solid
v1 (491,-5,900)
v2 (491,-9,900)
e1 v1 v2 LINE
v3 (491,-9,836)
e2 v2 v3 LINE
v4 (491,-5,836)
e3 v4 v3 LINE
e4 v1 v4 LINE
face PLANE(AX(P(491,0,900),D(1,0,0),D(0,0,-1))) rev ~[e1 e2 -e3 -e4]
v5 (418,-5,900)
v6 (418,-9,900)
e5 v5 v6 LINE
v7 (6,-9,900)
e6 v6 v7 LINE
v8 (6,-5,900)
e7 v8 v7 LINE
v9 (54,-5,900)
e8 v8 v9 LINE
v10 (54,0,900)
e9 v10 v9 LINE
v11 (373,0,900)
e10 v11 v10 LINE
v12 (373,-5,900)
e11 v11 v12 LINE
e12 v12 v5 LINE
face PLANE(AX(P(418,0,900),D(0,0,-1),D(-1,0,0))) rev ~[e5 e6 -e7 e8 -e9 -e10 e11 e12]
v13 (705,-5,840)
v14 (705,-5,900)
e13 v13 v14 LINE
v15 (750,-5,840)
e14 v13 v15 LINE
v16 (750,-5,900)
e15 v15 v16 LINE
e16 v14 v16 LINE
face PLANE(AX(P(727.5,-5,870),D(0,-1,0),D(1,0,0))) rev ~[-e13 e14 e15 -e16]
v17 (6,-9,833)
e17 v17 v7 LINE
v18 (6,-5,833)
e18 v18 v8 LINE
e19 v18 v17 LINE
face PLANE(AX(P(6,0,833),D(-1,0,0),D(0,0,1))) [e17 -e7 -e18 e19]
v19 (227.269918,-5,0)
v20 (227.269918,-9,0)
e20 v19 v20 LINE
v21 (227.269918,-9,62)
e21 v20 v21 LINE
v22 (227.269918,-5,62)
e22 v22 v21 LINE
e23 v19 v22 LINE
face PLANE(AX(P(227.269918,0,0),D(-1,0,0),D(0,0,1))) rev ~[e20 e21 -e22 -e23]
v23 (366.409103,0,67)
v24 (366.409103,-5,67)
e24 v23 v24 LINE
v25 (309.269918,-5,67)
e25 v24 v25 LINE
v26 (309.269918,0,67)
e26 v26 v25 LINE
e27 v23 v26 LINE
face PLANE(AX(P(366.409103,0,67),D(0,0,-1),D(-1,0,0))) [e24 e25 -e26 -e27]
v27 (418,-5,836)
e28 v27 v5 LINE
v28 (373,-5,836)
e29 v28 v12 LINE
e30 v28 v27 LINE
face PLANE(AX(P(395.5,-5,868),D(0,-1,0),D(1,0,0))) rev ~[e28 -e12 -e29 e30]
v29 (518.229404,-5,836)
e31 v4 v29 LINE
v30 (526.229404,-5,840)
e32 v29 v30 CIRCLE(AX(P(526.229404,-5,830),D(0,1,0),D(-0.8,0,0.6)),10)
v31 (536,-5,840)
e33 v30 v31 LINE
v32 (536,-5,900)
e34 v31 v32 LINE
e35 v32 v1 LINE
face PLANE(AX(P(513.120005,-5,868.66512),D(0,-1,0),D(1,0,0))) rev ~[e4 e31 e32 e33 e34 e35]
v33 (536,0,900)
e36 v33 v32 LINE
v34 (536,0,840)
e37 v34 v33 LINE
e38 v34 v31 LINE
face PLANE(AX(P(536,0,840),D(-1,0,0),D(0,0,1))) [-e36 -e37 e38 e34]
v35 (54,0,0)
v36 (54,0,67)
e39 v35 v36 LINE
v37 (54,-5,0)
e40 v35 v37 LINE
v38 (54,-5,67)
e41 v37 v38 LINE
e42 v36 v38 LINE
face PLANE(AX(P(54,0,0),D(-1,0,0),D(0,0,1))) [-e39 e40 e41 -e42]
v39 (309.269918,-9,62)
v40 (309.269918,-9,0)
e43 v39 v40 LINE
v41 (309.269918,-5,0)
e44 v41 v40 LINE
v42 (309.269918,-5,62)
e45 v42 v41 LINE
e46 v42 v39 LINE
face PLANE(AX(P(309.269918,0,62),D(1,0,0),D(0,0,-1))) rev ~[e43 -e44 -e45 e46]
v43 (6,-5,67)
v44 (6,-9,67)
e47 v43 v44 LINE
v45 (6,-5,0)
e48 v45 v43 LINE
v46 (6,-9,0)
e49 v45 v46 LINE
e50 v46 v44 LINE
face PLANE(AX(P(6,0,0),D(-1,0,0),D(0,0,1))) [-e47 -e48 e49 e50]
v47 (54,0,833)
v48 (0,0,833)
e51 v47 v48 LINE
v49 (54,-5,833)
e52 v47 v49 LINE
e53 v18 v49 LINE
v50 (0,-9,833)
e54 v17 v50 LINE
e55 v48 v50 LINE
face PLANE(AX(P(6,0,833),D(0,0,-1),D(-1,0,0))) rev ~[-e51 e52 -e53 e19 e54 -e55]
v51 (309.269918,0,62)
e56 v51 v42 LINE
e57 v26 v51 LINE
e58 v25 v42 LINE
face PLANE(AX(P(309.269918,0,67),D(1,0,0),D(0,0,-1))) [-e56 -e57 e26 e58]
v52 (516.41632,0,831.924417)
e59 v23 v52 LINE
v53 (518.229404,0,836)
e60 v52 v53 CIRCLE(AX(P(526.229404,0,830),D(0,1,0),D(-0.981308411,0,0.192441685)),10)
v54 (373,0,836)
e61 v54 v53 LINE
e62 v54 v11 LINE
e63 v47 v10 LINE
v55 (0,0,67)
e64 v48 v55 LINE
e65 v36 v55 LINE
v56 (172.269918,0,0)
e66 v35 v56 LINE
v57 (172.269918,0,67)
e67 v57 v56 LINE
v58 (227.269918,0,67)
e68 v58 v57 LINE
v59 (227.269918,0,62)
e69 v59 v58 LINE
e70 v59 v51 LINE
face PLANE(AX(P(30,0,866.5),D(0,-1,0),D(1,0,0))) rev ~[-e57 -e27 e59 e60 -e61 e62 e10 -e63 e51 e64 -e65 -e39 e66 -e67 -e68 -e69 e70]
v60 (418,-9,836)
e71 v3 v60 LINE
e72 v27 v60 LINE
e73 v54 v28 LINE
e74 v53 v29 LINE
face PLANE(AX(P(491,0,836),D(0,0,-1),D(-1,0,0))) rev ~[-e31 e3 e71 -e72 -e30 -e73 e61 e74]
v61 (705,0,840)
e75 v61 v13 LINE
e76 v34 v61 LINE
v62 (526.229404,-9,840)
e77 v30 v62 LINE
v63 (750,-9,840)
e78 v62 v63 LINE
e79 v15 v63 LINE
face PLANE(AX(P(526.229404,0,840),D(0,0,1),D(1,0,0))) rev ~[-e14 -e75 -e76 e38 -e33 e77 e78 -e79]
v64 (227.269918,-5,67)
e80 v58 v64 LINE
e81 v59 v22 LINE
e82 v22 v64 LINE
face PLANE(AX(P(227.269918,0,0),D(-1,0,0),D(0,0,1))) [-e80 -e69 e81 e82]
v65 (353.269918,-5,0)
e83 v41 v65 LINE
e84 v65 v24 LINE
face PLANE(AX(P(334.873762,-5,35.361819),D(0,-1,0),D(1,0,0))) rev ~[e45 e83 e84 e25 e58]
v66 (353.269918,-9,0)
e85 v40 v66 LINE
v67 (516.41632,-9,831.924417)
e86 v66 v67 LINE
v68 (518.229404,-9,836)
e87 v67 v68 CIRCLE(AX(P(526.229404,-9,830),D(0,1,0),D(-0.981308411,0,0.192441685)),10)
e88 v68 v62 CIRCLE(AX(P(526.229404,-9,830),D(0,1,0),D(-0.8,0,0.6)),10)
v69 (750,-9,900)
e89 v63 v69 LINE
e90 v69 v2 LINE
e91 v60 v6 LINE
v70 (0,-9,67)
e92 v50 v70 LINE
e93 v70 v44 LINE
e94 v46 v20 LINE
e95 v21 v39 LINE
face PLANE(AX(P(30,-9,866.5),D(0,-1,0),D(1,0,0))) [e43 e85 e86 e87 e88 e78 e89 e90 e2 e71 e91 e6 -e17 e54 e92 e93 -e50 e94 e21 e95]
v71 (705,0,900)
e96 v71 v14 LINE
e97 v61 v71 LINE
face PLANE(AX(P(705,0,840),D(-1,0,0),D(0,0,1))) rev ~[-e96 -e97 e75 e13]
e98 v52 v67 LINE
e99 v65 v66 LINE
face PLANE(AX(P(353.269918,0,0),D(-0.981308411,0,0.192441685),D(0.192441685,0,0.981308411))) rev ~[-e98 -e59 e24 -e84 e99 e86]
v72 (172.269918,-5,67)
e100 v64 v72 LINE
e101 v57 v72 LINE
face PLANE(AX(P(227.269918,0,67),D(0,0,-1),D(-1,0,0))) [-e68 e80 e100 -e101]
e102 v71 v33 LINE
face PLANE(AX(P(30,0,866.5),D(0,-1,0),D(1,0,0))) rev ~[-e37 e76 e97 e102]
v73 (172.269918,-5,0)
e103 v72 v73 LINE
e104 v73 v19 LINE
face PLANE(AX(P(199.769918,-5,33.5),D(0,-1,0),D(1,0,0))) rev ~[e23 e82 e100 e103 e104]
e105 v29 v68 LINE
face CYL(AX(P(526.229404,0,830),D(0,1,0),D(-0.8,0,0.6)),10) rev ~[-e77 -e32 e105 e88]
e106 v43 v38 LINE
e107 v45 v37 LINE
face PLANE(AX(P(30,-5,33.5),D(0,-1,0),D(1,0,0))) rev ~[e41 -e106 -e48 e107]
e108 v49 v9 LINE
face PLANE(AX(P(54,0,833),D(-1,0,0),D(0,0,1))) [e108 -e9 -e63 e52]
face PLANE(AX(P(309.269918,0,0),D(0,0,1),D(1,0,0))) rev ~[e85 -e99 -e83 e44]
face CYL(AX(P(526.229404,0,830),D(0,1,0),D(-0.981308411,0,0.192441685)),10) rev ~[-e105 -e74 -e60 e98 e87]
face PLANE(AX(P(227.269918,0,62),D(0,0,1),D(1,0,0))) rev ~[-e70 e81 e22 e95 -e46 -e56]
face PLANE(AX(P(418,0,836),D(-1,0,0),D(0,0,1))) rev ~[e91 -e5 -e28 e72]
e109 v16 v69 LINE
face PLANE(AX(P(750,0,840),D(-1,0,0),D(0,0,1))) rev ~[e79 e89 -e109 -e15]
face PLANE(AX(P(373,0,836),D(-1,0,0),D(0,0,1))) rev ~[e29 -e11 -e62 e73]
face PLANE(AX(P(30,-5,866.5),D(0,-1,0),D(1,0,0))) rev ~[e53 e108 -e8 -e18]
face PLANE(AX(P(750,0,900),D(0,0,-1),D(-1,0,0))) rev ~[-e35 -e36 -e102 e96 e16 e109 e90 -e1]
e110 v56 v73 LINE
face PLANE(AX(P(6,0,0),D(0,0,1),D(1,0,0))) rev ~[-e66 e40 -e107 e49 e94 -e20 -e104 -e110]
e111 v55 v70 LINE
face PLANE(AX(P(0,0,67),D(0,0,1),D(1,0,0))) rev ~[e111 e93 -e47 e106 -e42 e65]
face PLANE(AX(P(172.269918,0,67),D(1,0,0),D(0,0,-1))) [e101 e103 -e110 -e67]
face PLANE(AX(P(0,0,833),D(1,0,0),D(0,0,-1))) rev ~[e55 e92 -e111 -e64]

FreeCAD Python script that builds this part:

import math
import FreeCAD as App
import Part
import Sketcher
Q = App.Units.Quantity


def add_polygon(sketch, points):
    """Adds a closed chain of lines whose ends are joined by coincident constraints."""
    first, n = sketch.GeometryCount, len(points)
    for a, b in zip(points, points[1:] + points[:1]):
        sketch.addGeometry(Part.LineSegment(App.Vector(*a, 0), App.Vector(*b, 0)), False)
    for i in range(n):
        sketch.addConstraint(Sketcher.Constraint("Coincident", first + i, 2, first + (i + 1) % n, 1))

doc = App.newDocument("Part")
body = doc.addObject("PartDesign::Body", "Body")

sketch1 = body.newObject("Sketcher::SketchObject", "Sketch")
sketch1.AttachmentSupport = (doc.getObject("XZ_Plane"), [""])
sketch1.MapMode = "FlatFace"
sketch1.addGeometry(Part.LineSegment(App.Vector(6, 900, 0), App.Vector(6, 833, 0)), False)
sketch1.addGeometry(Part.LineSegment(App.Vector(6, 833, 0), App.Vector(0, 833, 0)), False)
sketch1.addGeometry(Part.LineSegment(App.Vector(0, 833, 0), App.Vector(0, 67, 0)), False)
sketch1.addGeometry(Part.LineSegment(App.Vector(0, 67, 0), App.Vector(6, 67, 0)), False)
sketch1.addGeometry(Part.LineSegment(App.Vector(6, 67, 0), App.Vector(6, 0, 0)), False)
sketch1.addGeometry(Part.LineSegment(App.Vector(6, 0, 0), App.Vector(227.269918, 0, 0)), False)
sketch1.addGeometry(Part.LineSegment(App.Vector(227.269918, 0, 0), App.Vector(227.269918, 62, 0)), False)
sketch1.addGeometry(Part.LineSegment(App.Vector(227.269918, 62, 0), App.Vector(309.269918, 62, 0)), False)
sketch1.addGeometry(Part.LineSegment(App.Vector(309.269918, 62, 0), App.Vector(309.269918, 0, 0)), False)
sketch1.addGeometry(Part.LineSegment(App.Vector(309.269918, 0, 0), App.Vector(353.269918, 0, 0)), False)
sketch1.addGeometry(Part.LineSegment(App.Vector(353.269918, 0, 0), App.Vector(516.41632, 831.924417, 0)), False)
sketch1.addGeometry(Part.ArcOfCircle(Part.Circle(App.Vector(526.229404, 830, 0), App.Vector(0, 0, 1), 10), math.radians(143.130102), math.radians(168.904687)), False)
sketch1.addGeometry(Part.ArcOfCircle(Part.Circle(App.Vector(526.229404, 830, 0), App.Vector(0, 0, 1), 10), math.radians(90), math.radians(143.130102)), False)
sketch1.addGeometry(Part.LineSegment(App.Vector(526.229404, 840, 0), App.Vector(750, 840, 0)), False)
sketch1.addGeometry(Part.LineSegment(App.Vector(750, 840, 0), App.Vector(750, 900, 0)), False)
sketch1.addGeometry(Part.LineSegment(App.Vector(750, 900, 0), App.Vector(491, 900, 0)), False)
sketch1.addGeometry(Part.LineSegment(App.Vector(491, 900, 0), App.Vector(491, 836, 0)), False)
sketch1.addGeometry(Part.LineSegment(App.Vector(491, 836, 0), App.Vector(418, 836, 0)), False)
sketch1.addGeometry(Part.LineSegment(App.Vector(418, 836, 0), App.Vector(418, 900, 0)), False)
sketch1.addGeometry(Part.LineSegment(App.Vector(418, 900, 0), App.Vector(6, 900, 0)), False)
sketch1.addConstraint(Sketcher.Constraint("Coincident", 0, 2, 1, 1))
sketch1.addConstraint(Sketcher.Constraint("Coincident", 1, 2, 2, 1))
sketch1.addConstraint(Sketcher.Constraint("Coincident", 2, 2, 3, 1))
sketch1.addConstraint(Sketcher.Constraint("Coincident", 3, 2, 4, 1))
sketch1.addConstraint(Sketcher.Constraint("Coincident", 4, 2, 5, 1))
sketch1.addConstraint(Sketcher.Constraint("Coincident", 5, 2, 6, 1))
sketch1.addConstraint(Sketcher.Constraint("Coincident", 6, 2, 7, 1))
sketch1.addConstraint(Sketcher.Constraint("Coincident", 7, 2, 8, 1))
sketch1.addConstraint(Sketcher.Constraint("Coincident", 8, 2, 9, 1))
sketch1.addConstraint(Sketcher.Constraint("Coincident", 9, 2, 10, 1))
sketch1.addConstraint(Sketcher.Constraint("Tangent", 10, 2, 11, 2))
sketch1.addConstraint(Sketcher.Constraint("Tangent", 11, 1, 12, 2))
sketch1.addConstraint(Sketcher.Constraint("Tangent", 12, 1, 13, 1))
sketch1.addConstraint(Sketcher.Constraint("Coincident", 13, 2, 14, 1))
sketch1.addConstraint(Sketcher.Constraint("Coincident", 14, 2, 15, 1))
sketch1.addConstraint(Sketcher.Constraint("Coincident", 15, 2, 16, 1))
sketch1.addConstraint(Sketcher.Constraint("Coincident", 16, 2, 17, 1))
sketch1.addConstraint(Sketcher.Constraint("Coincident", 17, 2, 18, 1))
sketch1.addConstraint(Sketcher.Constraint("Coincident", 18, 2, 19, 1))
sketch1.addConstraint(Sketcher.Constraint("Coincident", 19, 2, 0, 1))
sketch1.addConstraint(Sketcher.Constraint("Vertical", 0))
sketch1.addConstraint(Sketcher.Constraint("Horizontal", 1))
sketch1.addConstraint(Sketcher.Constraint("Vertical", 2))
sketch1.addConstraint(Sketcher.Constraint("Horizontal", 3))
sketch1.addConstraint(Sketcher.Constraint("Vertical", 4))
sketch1.addConstraint(Sketcher.Constraint("Horizontal", 5))
sketch1.addConstraint(Sketcher.Constraint("Vertical", 6))
sketch1.addConstraint(Sketcher.Constraint("Horizontal", 7))
sketch1.addConstraint(Sketcher.Constraint("Vertical", 8))
sketch1.addConstraint(Sketcher.Constraint("Horizontal", 9))
sketch1.addConstraint(Sketcher.Constraint("Horizontal", 13))
sketch1.addConstraint(Sketcher.Constraint("Vertical", 14))
sketch1.addConstraint(Sketcher.Constraint("Horizontal", 15))
sketch1.addConstraint(Sketcher.Constraint("Vertical", 16))
sketch1.addConstraint(Sketcher.Constraint("Horizontal", 17))
sketch1.addConstraint(Sketcher.Constraint("Vertical", 18))
sketch1.addConstraint(Sketcher.Constraint("Horizontal", 19))
sketch1.addConstraint(Sketcher.Constraint("Equal", 11, 12))
sketch1.addConstraint(Sketcher.Constraint("PointOnObject", 1, 2, -2))
sketch1.addConstraint(Sketcher.Constraint("PointOnObject", 4, 2, -1))
sketch1.addConstraint(Sketcher.Constraint("PointOnObject", 8, 2, -1))
sketch1.addConstraint(Sketcher.Constraint("Horizontal", 11, 1, 16, 2))
sketch1.addConstraint(Sketcher.Constraint("Horizontal", 15, 2, 18, 2))
sketch1.addConstraint(Sketcher.Constraint("Vertical", 0, 2, 3, 2))
sketch1.addConstraint(Sketcher.Constraint("Equal", 0, 4))
sketch1.addConstraint(Sketcher.Constraint("Radius", 11, Q("10 mm")))
sketch1.addConstraint(Sketcher.Constraint("DistanceX", 1, 2, 1, 1, Q("6 mm")))
sketch1.addConstraint(Sketcher.Constraint("DistanceX", 7, 1, 7, 2, Q("82 mm")))
sketch1.addConstraint(Sketcher.Constraint("DistanceX", 9, 1, 9, 2, Q("44 mm")))
sketch1.addConstraint(Sketcher.Constraint("DistanceX", 15, 2, 15, 1, Q("259 mm")))
sketch1.addConstraint(Sketcher.Constraint("DistanceX", 17, 2, 17, 1, Q("73 mm")))
sketch1.addConstraint(Sketcher.Constraint("DistanceX", 19, 2, 19, 1, Q("412 mm")))
sketch1.addConstraint(Sketcher.Constraint("DistanceY", 0, 2, 0, 1, Q("67 mm")))
sketch1.addConstraint(Sketcher.Constraint("DistanceY", 2, 2, 2, 1, Q("766 mm")))
sketch1.addConstraint(Sketcher.Constraint("DistanceY", 6, 1, 6, 2, Q("62 mm")))
sketch1.addConstraint(Sketcher.Constraint("DistanceY", 14, 1, 14, 2, Q("60 mm")))
sketch1.addConstraint(Sketcher.Constraint("DistanceY", 16, 2, 16, 1, Q("64 mm")))
sketch1.addConstraint(Sketcher.Constraint("DistanceX", 7, 2, 10, 2, Q("207.146402 mm")))
sketch1.addConstraint(Sketcher.Constraint("DistanceX", 5, 1, 5, 2, Q("221.269918 mm")))
pad1 = body.newObject("PartDesign::Pad", "Pad")
pad1.Profile = sketch1
pad1.Length = 9

sketch2 = body.newObject("Sketcher::SketchObject", "Sketch001")
sketch2.AttachmentSupport = (doc.getObject("XZ_Plane"), [""])
sketch2.MapMode = "FlatFace"
add_polygon(sketch2, [(6, 900), (6, 833), (54, 833), (54, 900)])
add_polygon(sketch2, [(705, 900), (705, 840), (750, 840), (750, 900)])
add_polygon(sketch2, [(373, 900), (373, 836), (418, 836), (418, 900)])
sketch2.addGeometry(Part.LineSegment(App.Vector(536, 900, 0), App.Vector(491, 900, 0)), False)
sketch2.addGeometry(Part.LineSegment(App.Vector(491, 900, 0), App.Vector(491, 836, 0)), False)
sketch2.addGeometry(Part.LineSegment(App.Vector(491, 836, 0), App.Vector(518.229404, 836, 0)), False)
sketch2.addGeometry(Part.ArcOfCircle(Part.Circle(App.Vector(526.229404, 830, 0), App.Vector(0, 0, 1), 10), math.radians(90), math.radians(143.130102)), False)
sketch2.addGeometry(Part.LineSegment(App.Vector(526.229404, 840, 0), App.Vector(536, 840, 0)), False)
sketch2.addGeometry(Part.LineSegment(App.Vector(536, 840, 0), App.Vector(536, 900, 0)), False)
add_polygon(sketch2, [(309.269918, 0), (353.269918, 0), (366.409103, 67), (309.269918, 67)])
add_polygon(sketch2, [(172.269918, 67), (172.269918, 0), (227.269918, 0), (227.269918, 67)])
add_polygon(sketch2, [(6, 67), (6, 0), (54, 0), (54, 67)])
sketch2.addConstraint(Sketcher.Constraint("Coincident", 12, 2, 13, 1))
sketch2.addConstraint(Sketcher.Constraint("Coincident", 13, 2, 14, 1))
sketch2.addConstraint(Sketcher.Constraint("Coincident", 14, 2, 15, 2))
sketch2.addConstraint(Sketcher.Constraint("Tangent", 15, 1, 16, 1))
sketch2.addConstraint(Sketcher.Constraint("Coincident", 16, 2, 17, 1))
sketch2.addConstraint(Sketcher.Constraint("Coincident", 17, 2, 12, 1))
sketch2.addConstraint(Sketcher.Constraint("Vertical", 0))
sketch2.addConstraint(Sketcher.Constraint("Horizontal", 1))
sketch2.addConstraint(Sketcher.Constraint("Vertical", 2))
sketch2.addConstraint(Sketcher.Constraint("Horizontal", 3))
sketch2.addConstraint(Sketcher.Constraint("Vertical", 4))
sketch2.addConstraint(Sketcher.Constraint("Horizontal", 5))
sketch2.addConstraint(Sketcher.Constraint("Vertical", 6))
sketch2.addConstraint(Sketcher.Constraint("Horizontal", 7))
sketch2.addConstraint(Sketcher.Constraint("Vertical", 8))
sketch2.addConstraint(Sketcher.Constraint("Horizontal", 9))
sketch2.addConstraint(Sketcher.Constraint("Vertical", 10))
sketch2.addConstraint(Sketcher.Constraint("Horizontal", 11))
sketch2.addConstraint(Sketcher.Constraint("Horizontal", 12))
sketch2.addConstraint(Sketcher.Constraint("Vertical", 13))
sketch2.addConstraint(Sketcher.Constraint("Horizontal", 14))
sketch2.addConstraint(Sketcher.Constraint("Horizontal", 16))
sketch2.addConstraint(Sketcher.Constraint("Vertical", 17))
sketch2.addConstraint(Sketcher.Constraint("Horizontal", 18))
sketch2.addConstraint(Sketcher.Constraint("Horizontal", 20))
sketch2.addConstraint(Sketcher.Constraint("Vertical", 21))
sketch2.addConstraint(Sketcher.Constraint("Vertical", 22))
sketch2.addConstraint(Sketcher.Constraint("Horizontal", 23))
sketch2.addConstraint(Sketcher.Constraint("Vertical", 24))
sketch2.addConstraint(Sketcher.Constraint("Horizontal", 25))
sketch2.addConstraint(Sketcher.Constraint("Vertical", 26))
sketch2.addConstraint(Sketcher.Constraint("Horizontal", 27))
sketch2.addConstraint(Sketcher.Constraint("Vertical", 28))
sketch2.addConstraint(Sketcher.Constraint("Horizontal", 29))
sketch2.addConstraint(Sketcher.Constraint("PointOnObject", 18, 2, -1))
sketch2.addConstraint(Sketcher.Constraint("PointOnObject", 22, 2, -1))
sketch2.addConstraint(Sketcher.Constraint("PointOnObject", 26, 2, -1))
sketch2.addConstraint(Sketcher.Constraint("Horizontal", 3, 2, 6, 2))
sketch2.addConstraint(Sketcher.Constraint("Horizontal", 7, 2, 10, 2))
sketch2.addConstraint(Sketcher.Constraint("Horizontal", 11, 2, 12, 2))
sketch2.addConstraint(Sketcher.Constraint("Horizontal", 9, 2, 13, 2))
sketch2.addConstraint(Sketcher.Constraint("Horizontal", 5, 2, 15, 1))
sketch2.addConstraint(Sketcher.Constraint("Horizontal", 20, 2, 24, 2))
sketch2.addConstraint(Sketcher.Constraint("Horizontal", 25, 2, 28, 2))
sketch2.addConstraint(Sketcher.Constraint("Vertical", 3, 2, 26, 2))
sketch2.addConstraint(Sketcher.Constraint("Vertical", 2, 2, 27, 2))
sketch2.addConstraint(Sketcher.Constraint("Equal", 7, 9))
sketch2.addConstraint(Sketcher.Constraint("Equal", 11, 12))
sketch2.addConstraint(Sketcher.Constraint("Equal", 2, 21))
sketch2.addConstraint(Sketcher.Constraint("Radius", 15, Q("10 mm")))
sketch2.addConstraint(Sketcher.Constraint("DistanceX", 1, 1, 1, 2, Q("48 mm")))
sketch2.addConstraint(Sketcher.Constraint("DistanceX", 5, 1, 5, 2, Q("45 mm")))
sketch2.addConstraint(Sketcher.Constraint("DistanceX", 18, 1, 18, 2, Q("44 mm")))
sketch2.addConstraint(Sketcher.Constraint("DistanceX", 23, 1, 23, 2, Q("55 mm")))
sketch2.addConstraint(Sketcher.Constraint("DistanceY", 0, 2, 0, 1, Q("67 mm")))
sketch2.addConstraint(Sketcher.Constraint("DistanceY", 4, 2, 4, 1, Q("60 mm")))
sketch2.addConstraint(Sketcher.Constraint("DistanceY", 8, 2, 8, 1, Q("64 mm")))
sketch2.addConstraint(Sketcher.Constraint("DistanceY", -1, 1, 15, 3, Q("830 mm")))
sketch2.addConstraint(Sketcher.Constraint("DistanceX", -1, 1, 0, 2, Q("6 mm")))
sketch2.addConstraint(Sketcher.Constraint("DistanceX", -1, 1, 4, 2, Q("705 mm")))
sketch2.addConstraint(Sketcher.Constraint("DistanceX", -1, 1, 8, 2, Q("373 mm")))
sketch2.addConstraint(Sketcher.Constraint("DistanceX", -1, 1, 12, 2, Q("491 mm")))
sketch2.addConstraint(Sketcher.Constraint("DistanceX", 22, 2, 21, 2, Q("137 mm")))
sketch2.addConstraint(Sketcher.Constraint("DistanceX", 19, 2, 15, 3, Q("159.820301 mm")))
sketch2.addConstraint(Sketcher.Constraint("Distance", 19, Q("68.27619 mm")))
sketch2.addConstraint(Sketcher.Constraint("DistanceX", 14, 1, 14, 2, Q("27.229404 mm")))
pocket1 = body.newObject("PartDesign::Pocket", "Pocket")
pocket1.Profile = sketch2
pocket1.Length = 5
pocket1.Reversed = True

doc.recompute()
